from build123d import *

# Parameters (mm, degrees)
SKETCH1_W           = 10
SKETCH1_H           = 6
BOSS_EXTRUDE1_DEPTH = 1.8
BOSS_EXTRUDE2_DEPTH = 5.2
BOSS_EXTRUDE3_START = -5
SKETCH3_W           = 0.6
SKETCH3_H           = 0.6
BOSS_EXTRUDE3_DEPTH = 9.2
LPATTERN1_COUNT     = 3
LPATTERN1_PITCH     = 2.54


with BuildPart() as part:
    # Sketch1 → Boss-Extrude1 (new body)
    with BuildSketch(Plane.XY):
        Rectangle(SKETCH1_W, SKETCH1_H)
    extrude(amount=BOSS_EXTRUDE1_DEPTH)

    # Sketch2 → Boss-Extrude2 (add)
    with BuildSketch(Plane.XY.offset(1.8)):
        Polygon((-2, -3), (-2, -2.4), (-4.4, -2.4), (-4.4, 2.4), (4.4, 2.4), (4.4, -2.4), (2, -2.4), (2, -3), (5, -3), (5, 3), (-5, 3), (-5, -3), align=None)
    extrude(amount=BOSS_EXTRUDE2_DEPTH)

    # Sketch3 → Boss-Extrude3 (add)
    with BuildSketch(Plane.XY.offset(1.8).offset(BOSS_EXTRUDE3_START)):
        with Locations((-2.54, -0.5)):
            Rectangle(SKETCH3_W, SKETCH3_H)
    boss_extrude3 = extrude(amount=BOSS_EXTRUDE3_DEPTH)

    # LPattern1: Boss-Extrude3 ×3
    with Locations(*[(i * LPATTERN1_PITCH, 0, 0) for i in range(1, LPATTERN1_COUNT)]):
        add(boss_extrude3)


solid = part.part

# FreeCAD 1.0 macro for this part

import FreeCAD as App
import Part
import Sketcher
from FreeCAD import Vector


def add_polygon(sketch, points):
    """Adds a closed chain of lines whose ends are joined by coincident constraints."""
    first, n = sketch.GeometryCount, len(points)
    for a, b in zip(points, points[1:] + points[:1]):
        sketch.addGeometry(Part.LineSegment(App.Vector(*a, 0), App.Vector(*b, 0)), False)
    for i in range(n):
        sketch.addConstraint(Sketcher.Constraint("Coincident", first + i, 2, first + (i + 1) % n, 1))

doc = App.newDocument("Part")
body = doc.addObject("PartDesign::Body", "Body")

# Sketch on XY plane
sketch1 = doc.addObject("Sketcher::SketchObject", "Sketch")
body.addObject(sketch1)
sketch1.AttachmentSupport = (doc.XY_Plane, [""])
sketch1.MapMode = "FlatFace"
add_polygon(sketch1, [(-5, 3), (-5, -3), (5, -3), (5, 3)])  # lines 0-3
sketch1.addConstraint([
    Sketcher.Constraint("Vertical", 0),
    Sketcher.Constraint("Horizontal", 1),
    Sketcher.Constraint("Vertical", 2),
    Sketcher.Constraint("Horizontal", 3),
    Sketcher.Constraint("Symmetric", 0, 2, 2, 2, -1, 1),
    Sketcher.Constraint("DistanceX", 1, 1, 1, 2, 10.0),
    Sketcher.Constraint("DistanceY", 0, 2, 0, 1, 6.0),
])
pad1 = doc.addObject("PartDesign::Pad", "Pad")
body.addObject(pad1)
pad1.Profile = sketch1
pad1.Length = 1.8

# Sketch on XY plane
sketch2 = doc.addObject("Sketcher::SketchObject", "Sketch001")
body.addObject(sketch2)
sketch2.AttachmentSupport = (doc.XY_Plane, [""])
sketch2.MapMode = "FlatFace"
sketch2.AttachmentOffset = App.Placement(Vector(0, 0, 1.8), App.Rotation())
add_polygon(sketch2, [(-2, -3), (-2, -2.4), (-4.4, -2.4), (-4.4, 2.4), (4.4, 2.4), (4.4, -2.4), (2, -2.4), (2, -3), (5, -3), (5, 3), (-5, 3), (-5, -3)])  # lines 0-11
sketch2.addConstraint([
    Sketcher.Constraint("Vertical", 0),
    Sketcher.Constraint("Horizontal", 1),
    Sketcher.Constraint("Vertical", 2),
    Sketcher.Constraint("Horizontal", 3),
    Sketcher.Constraint("Vertical", 4),
    Sketcher.Constraint("Horizontal", 5),
    Sketcher.Constraint("Vertical", 6),
    Sketcher.Constraint("Horizontal", 7),
    Sketcher.Constraint("Vertical", 8),
    Sketcher.Constraint("Horizontal", 9),
    Sketcher.Constraint("Vertical", 10),
    Sketcher.Constraint("Horizontal", 11),
    Sketcher.Constraint("Symmetric", 1, 2, 3, 2, -1, 1),
    Sketcher.Constraint("Symmetric", 7, 2, 9, 2, -1, 1),
    Sketcher.Constraint("Symmetric", 0, 2, 5, 2, -2),
    Sketcher.Constraint("Horizontal", 7, 2, 10, 2),
    Sketcher.Constraint("DistanceX", 7, 1, 7, 2, 3.0),
    Sketcher.Constraint("DistanceX", 9, 2, 9, 1, 10.0),
    Sketcher.Constraint("DistanceY", 8, 1, 8, 2, 6.0),
    Sketcher.Constraint("DistanceX", 1, 2, 1, 1, 2.4),
    Sketcher.Constraint("DistanceY", 0, 1, 0, 2, 0.6),
])
pad2 = doc.addObject("PartDesign::Pad", "Pad001")
body.addObject(pad2)
pad2.Profile = sketch2
pad2.Length = 5.2

# Sketch on XY plane
sketch3 = doc.addObject("Sketcher::SketchObject", "Sketch002")
body.addObject(sketch3)
sketch3.AttachmentSupport = (doc.XY_Plane, [""])
sketch3.MapMode = "FlatFace"
sketch3.AttachmentOffset = App.Placement(Vector(0, 0, -3.2), App.Rotation())
add_polygon(sketch3, [(-2.8, -0.2), (-2.8, -0.8), (-2.2, -0.8), (-2.2, -0.2)])  # lines 0-3
sketch3.addConstraint([
    Sketcher.Constraint("Vertical", 0),
    Sketcher.Constraint("Horizontal", 1),
    Sketcher.Constraint("Vertical", 2),
    Sketcher.Constraint("Horizontal", 3),
    Sketcher.Constraint("Equal", 3, 0),
    Sketcher.Constraint("DistanceX", 1, 1, 1, 2, 0.6),
    Sketcher.Constraint("DistanceY", 0, 2, -1, 1, 0.8),
    Sketcher.Constraint("DistanceX", 0, 2, -1, 1, 2.84),
])
pad3 = doc.addObject("PartDesign::Pad", "Pad002")
body.addObject(pad3)
pad3.Profile = sketch3
pad3.Length = 9.2
doc.recompute()

linearpattern = doc.addObject("PartDesign::LinearPattern", "LinearPattern")
body.addObject(linearpattern)
linearpattern.Originals = [pad3]
linearpattern.Direction = (doc.X_Axis, [""])
linearpattern.Mode = "offset"
linearpattern.Offset = 2.54
linearpattern.Occurrences = 3
body.Tip = linearpattern

doc.recompute()
